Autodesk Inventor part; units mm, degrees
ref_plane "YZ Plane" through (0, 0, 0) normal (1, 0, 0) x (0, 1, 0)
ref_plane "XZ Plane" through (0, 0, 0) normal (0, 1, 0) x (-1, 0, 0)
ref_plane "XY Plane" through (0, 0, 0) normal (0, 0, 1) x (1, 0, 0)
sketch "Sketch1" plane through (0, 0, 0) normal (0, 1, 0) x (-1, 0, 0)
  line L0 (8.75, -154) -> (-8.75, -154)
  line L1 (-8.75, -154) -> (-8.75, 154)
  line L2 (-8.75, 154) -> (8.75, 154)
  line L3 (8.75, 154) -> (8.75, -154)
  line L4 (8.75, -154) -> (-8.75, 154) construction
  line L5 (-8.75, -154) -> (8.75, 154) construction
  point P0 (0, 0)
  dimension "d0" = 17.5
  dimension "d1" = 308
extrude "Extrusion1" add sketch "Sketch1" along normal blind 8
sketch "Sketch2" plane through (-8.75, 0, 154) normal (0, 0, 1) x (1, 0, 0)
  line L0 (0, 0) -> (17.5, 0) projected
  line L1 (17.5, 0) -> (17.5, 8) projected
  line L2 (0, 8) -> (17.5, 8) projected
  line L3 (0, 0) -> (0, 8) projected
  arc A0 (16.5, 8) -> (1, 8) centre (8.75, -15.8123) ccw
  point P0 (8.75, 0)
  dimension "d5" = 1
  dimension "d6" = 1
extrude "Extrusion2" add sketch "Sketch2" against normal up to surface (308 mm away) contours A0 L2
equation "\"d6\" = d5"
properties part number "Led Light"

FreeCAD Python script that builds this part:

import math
import FreeCAD as App
import Part
import Sketcher

V = App.Vector
Q = App.Units.Quantity

doc = App.newDocument("Part")
body = doc.addObject("PartDesign::Body", "Body")

# Sketch on XZ plane
sketch1 = doc.addObject("Sketcher::SketchObject", "Sketch")
body.addObject(sketch1)
sketch1.AttachmentSupport = (doc.XZ_Plane, [""])
sketch1.MapMode = "FlatFace"
sketch1.addGeometry([
    Part.LineSegment(V(9, -154, 0), V(-9, -154, 0)),
    Part.LineSegment(V(-9, -154, 0), V(-9, 154, 0)),
    Part.LineSegment(V(-9, 154, 0), V(9, 154, 0)),
    Part.LineSegment(V(9, 154, 0), V(9, -154, 0)),
], False)
sketch1.addConstraint([
    Sketcher.Constraint("Coincident", 0, 2, 1, 1),
    Sketcher.Constraint("Coincident", 1, 2, 2, 1),
    Sketcher.Constraint("Coincident", 2, 2, 3, 1),
    Sketcher.Constraint("Coincident", 3, 2, 0, 1),
    Sketcher.Constraint("Horizontal", 0),
    Sketcher.Constraint("Vertical", 1),
    Sketcher.Constraint("Horizontal", 2),
    Sketcher.Constraint("Vertical", 3),
    Sketcher.Constraint("Symmetric", 0, 2, 2, 2, -1, 1),
    Sketcher.Constraint("DistanceY", 1, 1, 1, 2, Q("308 mm")),
    Sketcher.Constraint("DistanceX", 0, 2, 0, 1, Q("17.5 mm")),
])
pad1 = doc.addObject("PartDesign::Pad", "Pad")
body.addObject(pad1)
pad1.Profile = sketch1
pad1.Length = 8
pad1.Reversed = True

# Sketch on XY plane
sketch2 = doc.addObject("Sketcher::SketchObject", "Sketch001")
body.addObject(sketch2)
sketch2.AttachmentSupport = (doc.XY_Plane, [""])
sketch2.MapMode = "FlatFace"
sketch2.AttachmentOffset = App.Placement(V(0, 0, 154), App.Rotation())
sketch2.addGeometry([
    Part.ArcOfCircle(Part.Circle(V(0, -16, 0), V(0, 0, 1), 25), math.radians(72), math.radians(108)),
    Part.LineSegment(V(-8, 8, 0), V(8, 8, 0)),
], False)
sketch2.addConstraint([
    Sketcher.Constraint("Coincident", 0, 1, 1, 2),
    Sketcher.Constraint("Coincident", 1, 1, 0, 2),
    Sketcher.Constraint("Horizontal", 1),
    Sketcher.Constraint("PointOnObject", 0, 3, -2),
    Sketcher.Constraint("DistanceX", 1, 1, 1, 2, Q("15.5 mm")),
    Sketcher.Constraint("DistanceY", -1, 1, 0, 1, Q("8 mm")),
    Sketcher.Constraint("Radius", 0, Q("25.0417 mm")),
])
pad2 = doc.addObject("PartDesign::Pad", "Pad001")
body.addObject(pad2)
pad2.Profile = sketch2
pad2.Length = 308
pad2.Reversed = True

doc.recompute()
